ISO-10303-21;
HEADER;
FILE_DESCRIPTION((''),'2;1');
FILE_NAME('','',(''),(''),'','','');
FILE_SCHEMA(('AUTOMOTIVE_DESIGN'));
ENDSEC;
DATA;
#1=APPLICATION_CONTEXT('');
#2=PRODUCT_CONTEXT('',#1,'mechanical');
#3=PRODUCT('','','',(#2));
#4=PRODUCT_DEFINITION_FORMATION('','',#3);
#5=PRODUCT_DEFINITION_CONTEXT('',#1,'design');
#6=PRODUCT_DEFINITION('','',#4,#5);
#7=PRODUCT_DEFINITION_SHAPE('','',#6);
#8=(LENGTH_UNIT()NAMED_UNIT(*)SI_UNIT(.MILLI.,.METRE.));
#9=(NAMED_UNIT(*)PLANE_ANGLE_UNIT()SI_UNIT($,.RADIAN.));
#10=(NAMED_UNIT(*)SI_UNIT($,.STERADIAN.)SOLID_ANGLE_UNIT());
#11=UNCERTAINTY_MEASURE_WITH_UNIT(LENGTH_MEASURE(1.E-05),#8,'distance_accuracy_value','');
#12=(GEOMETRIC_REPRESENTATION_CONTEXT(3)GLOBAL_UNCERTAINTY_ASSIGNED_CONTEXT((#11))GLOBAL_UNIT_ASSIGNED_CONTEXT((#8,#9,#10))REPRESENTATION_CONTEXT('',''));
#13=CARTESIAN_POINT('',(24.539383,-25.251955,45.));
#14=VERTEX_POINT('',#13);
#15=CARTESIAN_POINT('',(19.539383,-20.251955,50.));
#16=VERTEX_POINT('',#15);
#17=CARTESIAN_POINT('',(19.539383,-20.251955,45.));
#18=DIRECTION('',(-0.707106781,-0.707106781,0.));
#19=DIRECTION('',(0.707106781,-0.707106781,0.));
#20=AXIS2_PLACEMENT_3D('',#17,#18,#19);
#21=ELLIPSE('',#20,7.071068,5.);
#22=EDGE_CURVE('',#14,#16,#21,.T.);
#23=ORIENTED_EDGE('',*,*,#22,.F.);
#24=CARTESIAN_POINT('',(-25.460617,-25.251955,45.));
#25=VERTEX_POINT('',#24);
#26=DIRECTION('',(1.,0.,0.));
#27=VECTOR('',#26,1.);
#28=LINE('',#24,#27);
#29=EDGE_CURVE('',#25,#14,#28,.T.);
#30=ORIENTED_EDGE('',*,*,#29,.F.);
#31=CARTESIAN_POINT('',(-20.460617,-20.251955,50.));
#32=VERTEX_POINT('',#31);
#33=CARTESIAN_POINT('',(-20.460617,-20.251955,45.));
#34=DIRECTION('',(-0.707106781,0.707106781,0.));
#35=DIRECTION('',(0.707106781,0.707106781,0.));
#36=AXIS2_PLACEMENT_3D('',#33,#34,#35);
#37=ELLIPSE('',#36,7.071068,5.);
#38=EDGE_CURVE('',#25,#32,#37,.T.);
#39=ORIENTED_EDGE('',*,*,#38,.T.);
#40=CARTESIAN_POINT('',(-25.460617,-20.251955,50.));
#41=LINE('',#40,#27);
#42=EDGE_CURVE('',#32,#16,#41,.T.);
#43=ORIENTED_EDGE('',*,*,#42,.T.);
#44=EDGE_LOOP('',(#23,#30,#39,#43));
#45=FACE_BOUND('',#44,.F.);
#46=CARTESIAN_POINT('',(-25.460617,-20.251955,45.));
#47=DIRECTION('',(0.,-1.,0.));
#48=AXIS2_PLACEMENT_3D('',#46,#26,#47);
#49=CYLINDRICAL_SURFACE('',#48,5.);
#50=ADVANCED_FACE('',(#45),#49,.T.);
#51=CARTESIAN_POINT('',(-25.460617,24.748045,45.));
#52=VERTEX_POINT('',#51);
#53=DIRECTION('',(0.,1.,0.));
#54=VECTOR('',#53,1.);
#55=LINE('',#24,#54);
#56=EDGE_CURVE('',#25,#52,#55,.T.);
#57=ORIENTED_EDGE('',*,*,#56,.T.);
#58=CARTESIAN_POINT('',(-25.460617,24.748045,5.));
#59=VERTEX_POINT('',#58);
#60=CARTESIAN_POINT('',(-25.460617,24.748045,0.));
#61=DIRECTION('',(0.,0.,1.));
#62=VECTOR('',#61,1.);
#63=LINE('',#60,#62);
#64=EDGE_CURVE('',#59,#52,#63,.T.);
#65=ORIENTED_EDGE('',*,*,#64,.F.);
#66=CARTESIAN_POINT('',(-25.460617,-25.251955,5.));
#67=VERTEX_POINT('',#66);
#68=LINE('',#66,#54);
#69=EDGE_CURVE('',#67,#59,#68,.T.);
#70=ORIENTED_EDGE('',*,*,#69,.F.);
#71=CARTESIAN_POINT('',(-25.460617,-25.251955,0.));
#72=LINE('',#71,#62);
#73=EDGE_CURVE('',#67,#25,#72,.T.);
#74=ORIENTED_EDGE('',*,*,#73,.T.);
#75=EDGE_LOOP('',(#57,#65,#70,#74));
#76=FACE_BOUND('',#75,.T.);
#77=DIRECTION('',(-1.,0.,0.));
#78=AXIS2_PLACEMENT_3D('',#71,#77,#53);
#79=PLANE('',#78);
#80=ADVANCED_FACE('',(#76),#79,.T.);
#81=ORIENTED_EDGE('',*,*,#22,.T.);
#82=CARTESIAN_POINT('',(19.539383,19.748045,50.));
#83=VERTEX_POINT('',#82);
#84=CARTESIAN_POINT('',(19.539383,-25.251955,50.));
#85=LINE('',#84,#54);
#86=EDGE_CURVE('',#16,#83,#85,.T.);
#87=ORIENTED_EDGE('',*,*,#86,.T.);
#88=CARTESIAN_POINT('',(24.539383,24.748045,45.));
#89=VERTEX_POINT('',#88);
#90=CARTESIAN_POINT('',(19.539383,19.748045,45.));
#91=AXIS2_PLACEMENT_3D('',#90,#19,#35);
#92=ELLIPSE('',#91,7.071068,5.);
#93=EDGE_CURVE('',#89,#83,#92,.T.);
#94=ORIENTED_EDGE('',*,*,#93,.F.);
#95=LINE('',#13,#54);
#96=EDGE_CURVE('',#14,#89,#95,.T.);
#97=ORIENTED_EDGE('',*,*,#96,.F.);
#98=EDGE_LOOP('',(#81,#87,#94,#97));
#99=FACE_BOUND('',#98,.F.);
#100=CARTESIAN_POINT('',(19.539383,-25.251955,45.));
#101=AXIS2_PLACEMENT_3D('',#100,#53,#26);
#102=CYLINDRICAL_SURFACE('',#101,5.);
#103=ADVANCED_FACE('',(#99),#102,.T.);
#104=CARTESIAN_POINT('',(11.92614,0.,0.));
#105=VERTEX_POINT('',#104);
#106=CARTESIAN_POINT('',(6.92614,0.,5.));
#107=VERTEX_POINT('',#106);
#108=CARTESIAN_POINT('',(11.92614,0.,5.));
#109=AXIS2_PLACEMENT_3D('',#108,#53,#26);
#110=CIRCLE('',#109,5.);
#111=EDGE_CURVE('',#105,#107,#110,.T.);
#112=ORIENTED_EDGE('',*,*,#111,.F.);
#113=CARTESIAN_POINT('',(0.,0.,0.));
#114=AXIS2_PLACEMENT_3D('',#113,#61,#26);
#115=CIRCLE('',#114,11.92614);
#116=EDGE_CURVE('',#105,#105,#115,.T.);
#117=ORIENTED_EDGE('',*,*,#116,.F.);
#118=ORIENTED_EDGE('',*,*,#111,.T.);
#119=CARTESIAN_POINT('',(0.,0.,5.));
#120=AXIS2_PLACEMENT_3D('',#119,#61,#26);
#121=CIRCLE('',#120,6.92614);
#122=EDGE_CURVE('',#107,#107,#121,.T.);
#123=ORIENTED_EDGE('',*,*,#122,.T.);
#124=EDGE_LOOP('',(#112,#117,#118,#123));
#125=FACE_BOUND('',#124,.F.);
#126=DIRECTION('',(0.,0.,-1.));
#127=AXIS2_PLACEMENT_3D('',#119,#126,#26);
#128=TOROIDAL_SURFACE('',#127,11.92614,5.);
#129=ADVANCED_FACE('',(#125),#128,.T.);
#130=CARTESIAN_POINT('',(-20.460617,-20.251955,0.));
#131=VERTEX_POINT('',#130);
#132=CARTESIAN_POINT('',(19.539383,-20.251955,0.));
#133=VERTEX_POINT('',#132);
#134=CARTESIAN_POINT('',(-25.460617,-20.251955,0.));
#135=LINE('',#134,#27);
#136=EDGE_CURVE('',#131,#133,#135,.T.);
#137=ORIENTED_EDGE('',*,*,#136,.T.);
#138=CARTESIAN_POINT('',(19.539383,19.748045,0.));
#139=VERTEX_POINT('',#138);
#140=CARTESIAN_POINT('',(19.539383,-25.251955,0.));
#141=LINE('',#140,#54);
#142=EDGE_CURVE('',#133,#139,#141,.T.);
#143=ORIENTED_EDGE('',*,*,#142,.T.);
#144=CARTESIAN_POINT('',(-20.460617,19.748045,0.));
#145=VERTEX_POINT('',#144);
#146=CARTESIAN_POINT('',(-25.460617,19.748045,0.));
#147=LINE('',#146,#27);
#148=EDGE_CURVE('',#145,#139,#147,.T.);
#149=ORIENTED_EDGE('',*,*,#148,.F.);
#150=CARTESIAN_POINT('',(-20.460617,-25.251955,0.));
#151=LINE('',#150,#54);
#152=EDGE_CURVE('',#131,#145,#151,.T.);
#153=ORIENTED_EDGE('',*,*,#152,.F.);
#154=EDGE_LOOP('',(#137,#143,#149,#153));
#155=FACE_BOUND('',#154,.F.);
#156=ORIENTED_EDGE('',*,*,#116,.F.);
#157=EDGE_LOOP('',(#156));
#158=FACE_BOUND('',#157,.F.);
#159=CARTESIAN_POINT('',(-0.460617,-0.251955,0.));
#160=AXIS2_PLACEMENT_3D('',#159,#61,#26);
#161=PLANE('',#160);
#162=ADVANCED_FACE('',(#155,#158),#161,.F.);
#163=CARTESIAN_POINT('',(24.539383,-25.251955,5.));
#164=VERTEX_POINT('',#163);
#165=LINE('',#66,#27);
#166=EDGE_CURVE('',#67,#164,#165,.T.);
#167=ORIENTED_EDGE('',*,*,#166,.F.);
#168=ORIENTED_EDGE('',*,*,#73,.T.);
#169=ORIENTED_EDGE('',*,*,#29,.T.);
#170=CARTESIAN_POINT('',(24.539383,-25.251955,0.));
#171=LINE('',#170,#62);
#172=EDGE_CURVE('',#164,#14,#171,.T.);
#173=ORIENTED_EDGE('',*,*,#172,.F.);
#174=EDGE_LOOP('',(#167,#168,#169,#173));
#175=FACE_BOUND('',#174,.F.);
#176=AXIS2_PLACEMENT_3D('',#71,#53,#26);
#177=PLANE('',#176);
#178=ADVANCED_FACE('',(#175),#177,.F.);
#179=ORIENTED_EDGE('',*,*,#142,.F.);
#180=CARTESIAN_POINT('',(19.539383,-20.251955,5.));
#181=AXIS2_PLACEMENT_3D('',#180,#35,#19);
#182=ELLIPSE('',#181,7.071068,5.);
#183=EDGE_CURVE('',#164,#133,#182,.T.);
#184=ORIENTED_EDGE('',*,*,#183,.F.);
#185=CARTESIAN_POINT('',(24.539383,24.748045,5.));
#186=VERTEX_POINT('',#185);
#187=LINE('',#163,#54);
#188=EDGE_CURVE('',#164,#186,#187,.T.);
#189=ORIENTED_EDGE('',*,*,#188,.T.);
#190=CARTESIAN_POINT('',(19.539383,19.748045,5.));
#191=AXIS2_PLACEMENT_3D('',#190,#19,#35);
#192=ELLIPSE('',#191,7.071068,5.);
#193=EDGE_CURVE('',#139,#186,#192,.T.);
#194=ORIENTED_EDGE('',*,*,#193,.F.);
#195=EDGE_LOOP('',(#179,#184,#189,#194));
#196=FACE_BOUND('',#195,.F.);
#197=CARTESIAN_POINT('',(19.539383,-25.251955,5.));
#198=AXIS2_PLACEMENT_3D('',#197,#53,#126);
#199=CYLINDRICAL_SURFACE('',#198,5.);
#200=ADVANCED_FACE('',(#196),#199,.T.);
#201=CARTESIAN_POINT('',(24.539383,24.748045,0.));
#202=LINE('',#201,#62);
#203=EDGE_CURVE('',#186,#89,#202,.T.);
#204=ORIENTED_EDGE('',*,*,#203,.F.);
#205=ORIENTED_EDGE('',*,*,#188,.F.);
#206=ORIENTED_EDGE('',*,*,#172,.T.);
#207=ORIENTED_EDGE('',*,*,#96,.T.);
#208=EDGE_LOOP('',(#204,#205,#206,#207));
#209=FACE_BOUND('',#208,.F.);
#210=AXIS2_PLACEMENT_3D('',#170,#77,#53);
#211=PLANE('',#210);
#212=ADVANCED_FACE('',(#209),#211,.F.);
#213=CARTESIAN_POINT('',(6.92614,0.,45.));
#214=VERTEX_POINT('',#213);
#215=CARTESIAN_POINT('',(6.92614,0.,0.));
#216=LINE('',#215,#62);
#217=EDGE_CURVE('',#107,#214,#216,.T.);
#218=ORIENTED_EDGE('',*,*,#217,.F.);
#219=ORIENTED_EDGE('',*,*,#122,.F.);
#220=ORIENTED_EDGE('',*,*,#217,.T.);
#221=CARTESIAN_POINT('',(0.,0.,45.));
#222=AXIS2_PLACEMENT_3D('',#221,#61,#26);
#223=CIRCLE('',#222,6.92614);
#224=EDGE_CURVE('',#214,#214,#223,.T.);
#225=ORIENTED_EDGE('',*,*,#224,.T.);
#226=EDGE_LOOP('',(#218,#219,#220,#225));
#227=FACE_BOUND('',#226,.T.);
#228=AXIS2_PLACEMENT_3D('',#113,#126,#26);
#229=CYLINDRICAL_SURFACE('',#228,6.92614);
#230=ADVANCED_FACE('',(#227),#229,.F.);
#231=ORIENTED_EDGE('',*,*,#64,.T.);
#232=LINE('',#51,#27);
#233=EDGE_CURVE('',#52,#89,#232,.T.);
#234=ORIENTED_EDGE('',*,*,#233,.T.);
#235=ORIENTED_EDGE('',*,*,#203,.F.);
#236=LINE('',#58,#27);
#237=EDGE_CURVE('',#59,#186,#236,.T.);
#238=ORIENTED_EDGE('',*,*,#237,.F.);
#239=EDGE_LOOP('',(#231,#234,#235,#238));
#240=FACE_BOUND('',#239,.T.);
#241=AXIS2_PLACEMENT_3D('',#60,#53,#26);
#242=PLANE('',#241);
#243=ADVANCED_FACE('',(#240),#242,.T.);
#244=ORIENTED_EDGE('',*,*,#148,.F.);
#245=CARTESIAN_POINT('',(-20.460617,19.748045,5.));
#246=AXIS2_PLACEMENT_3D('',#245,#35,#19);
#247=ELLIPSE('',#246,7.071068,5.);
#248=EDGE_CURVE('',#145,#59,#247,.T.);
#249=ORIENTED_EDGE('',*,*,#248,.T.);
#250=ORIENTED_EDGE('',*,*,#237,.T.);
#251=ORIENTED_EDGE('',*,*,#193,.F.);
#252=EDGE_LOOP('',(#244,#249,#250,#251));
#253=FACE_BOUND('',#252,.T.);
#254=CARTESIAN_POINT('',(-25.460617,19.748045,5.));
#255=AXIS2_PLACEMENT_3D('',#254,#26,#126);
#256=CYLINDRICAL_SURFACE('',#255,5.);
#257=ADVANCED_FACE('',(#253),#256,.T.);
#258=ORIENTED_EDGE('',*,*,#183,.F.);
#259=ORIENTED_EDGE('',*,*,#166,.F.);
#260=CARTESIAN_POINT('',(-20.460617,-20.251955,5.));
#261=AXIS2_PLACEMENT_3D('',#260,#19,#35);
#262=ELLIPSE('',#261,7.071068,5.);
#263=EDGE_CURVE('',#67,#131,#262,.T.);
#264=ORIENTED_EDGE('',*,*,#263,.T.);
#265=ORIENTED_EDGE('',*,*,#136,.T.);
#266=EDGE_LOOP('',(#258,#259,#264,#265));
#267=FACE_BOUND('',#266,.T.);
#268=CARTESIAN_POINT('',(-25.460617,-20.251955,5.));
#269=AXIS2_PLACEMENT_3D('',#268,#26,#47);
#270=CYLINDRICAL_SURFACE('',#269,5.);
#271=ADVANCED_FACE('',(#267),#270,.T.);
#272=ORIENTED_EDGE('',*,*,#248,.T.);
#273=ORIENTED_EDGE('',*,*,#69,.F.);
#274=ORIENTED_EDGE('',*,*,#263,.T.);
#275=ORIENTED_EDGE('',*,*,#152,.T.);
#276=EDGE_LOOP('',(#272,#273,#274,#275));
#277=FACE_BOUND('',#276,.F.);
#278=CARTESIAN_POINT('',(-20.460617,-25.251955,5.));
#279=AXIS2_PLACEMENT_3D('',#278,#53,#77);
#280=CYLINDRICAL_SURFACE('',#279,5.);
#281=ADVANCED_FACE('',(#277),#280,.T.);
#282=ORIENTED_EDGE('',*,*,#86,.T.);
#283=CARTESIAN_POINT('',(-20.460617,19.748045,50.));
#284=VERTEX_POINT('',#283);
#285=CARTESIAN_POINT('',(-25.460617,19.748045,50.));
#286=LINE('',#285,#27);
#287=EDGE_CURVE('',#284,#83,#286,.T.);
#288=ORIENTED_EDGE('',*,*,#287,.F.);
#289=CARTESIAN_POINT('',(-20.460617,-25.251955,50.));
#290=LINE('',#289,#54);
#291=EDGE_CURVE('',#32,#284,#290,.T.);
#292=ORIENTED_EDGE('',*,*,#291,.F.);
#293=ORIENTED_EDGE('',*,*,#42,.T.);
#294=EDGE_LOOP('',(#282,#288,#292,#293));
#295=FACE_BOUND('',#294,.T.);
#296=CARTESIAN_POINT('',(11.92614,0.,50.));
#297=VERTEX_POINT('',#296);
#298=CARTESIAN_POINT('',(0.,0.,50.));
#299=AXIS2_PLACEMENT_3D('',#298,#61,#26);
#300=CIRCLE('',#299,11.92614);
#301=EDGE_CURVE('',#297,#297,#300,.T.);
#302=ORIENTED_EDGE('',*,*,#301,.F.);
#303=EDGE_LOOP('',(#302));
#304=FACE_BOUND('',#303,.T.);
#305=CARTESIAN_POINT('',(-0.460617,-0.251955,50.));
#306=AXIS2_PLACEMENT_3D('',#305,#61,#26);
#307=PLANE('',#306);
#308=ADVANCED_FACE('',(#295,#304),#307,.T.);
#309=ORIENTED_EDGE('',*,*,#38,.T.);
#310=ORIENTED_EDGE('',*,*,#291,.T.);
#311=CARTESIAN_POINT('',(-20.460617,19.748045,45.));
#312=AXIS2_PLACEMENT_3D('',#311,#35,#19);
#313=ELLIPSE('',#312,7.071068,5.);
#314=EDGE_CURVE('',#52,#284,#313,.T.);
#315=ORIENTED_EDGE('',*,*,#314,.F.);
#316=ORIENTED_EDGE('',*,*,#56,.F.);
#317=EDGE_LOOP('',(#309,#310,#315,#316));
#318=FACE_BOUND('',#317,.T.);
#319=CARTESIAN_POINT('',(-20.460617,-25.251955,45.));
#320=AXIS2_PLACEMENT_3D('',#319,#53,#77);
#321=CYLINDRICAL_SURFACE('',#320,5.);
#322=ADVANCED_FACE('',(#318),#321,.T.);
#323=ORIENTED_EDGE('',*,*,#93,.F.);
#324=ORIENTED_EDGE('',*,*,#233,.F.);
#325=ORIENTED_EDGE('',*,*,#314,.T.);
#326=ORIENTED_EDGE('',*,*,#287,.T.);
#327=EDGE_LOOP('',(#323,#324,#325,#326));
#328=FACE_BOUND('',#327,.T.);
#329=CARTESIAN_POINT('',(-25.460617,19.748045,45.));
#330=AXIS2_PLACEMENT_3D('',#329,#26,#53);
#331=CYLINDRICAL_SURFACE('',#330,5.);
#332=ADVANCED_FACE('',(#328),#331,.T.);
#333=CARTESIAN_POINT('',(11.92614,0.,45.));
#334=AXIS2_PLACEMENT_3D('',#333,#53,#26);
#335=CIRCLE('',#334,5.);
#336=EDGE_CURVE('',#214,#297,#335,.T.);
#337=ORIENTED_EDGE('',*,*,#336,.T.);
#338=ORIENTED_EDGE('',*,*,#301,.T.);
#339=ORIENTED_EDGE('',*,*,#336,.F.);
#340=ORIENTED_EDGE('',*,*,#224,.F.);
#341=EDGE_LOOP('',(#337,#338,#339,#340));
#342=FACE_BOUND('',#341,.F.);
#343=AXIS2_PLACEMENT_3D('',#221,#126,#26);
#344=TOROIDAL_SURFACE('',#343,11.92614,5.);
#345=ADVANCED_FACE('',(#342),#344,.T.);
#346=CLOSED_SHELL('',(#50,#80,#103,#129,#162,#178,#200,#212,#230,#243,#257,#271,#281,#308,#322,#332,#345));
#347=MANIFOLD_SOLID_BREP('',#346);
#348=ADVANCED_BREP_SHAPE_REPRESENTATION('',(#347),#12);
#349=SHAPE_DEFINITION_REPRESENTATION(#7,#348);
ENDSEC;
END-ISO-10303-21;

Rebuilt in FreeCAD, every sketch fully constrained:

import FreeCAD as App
import Part
import Sketcher

V = App.Vector


def edges_at(feature, points):
    """Names of the edges that pass closest to the given points."""
    edges = feature.Shape.Edges
    near = lambda p: min(range(len(edges)), key=lambda i: edges[i].distToShape(Part.Vertex(*p))[0])
    return sorted({f"Edge{near(p) + 1}" for p in points})

doc = App.newDocument("Part")
body = doc.addObject("PartDesign::Body", "Body")

# Sketch on XY plane
sketch1 = doc.addObject("Sketcher::SketchObject", "Sketch")
body.addObject(sketch1)
sketch1.AttachmentSupport = (doc.XY_Plane, [""])
sketch1.MapMode = "FlatFace"
sketch1.addGeometry([
    Part.LineSegment(V(-25.460617, 24.748045, 0), V(-25.460617, -25.251955, 0)),  # 0
    Part.LineSegment(V(-25.460617, -25.251955, 0), V(24.539383, -25.251955, 0)),  # 1
    Part.LineSegment(V(24.539383, -25.251955, 0), V(24.539383, 24.748045, 0)),  # 2
    Part.LineSegment(V(24.539383, 24.748045, 0), V(-25.460617, 24.748045, 0)),  # 3
    Part.Circle(V(0, 0, 0), V(0, 0, 1), 6.92614),  # 4
], False)
sketch1.addConstraint([
    Sketcher.Constraint("Coincident", 0, 2, 1, 1),
    Sketcher.Constraint("Coincident", 1, 2, 2, 1),
    Sketcher.Constraint("Coincident", 2, 2, 3, 1),
    Sketcher.Constraint("Coincident", 3, 2, 0, 1),
    Sketcher.Constraint("Vertical", 0),
    Sketcher.Constraint("Horizontal", 1),
    Sketcher.Constraint("Vertical", 2),
    Sketcher.Constraint("Horizontal", 3),
    Sketcher.Constraint("Coincident", 4, 3, -1, 1),
    Sketcher.Constraint("Equal", 3, 0),
    Sketcher.Constraint("DistanceX", 1, 1, 1, 2, 50.0),
    Sketcher.Constraint("Diameter", 4, 13.85228),
    Sketcher.Constraint("DistanceX", 0, 2, -1, 1, 25.460617),
    Sketcher.Constraint("DistanceY", 0, 2, -1, 1, 25.251955),
])
pad1 = doc.addObject("PartDesign::Pad", "Pad")
body.addObject(pad1)
pad1.Profile = sketch1
pad1.Length = 50

# Sketch on XY plane
sketch2 = doc.addObject("Sketcher::SketchObject", "Sketch001")
body.addObject(sketch2)
sketch2.AttachmentSupport = (doc.XY_Plane, [""])
sketch2.MapMode = "FlatFace"
sketch2.addGeometry([
    Part.LineSegment(V(-25.460617, 24.748045, 0), V(-25.460617, -25.251955, 0)),  # 0
    Part.LineSegment(V(-25.460617, -25.251955, 0), V(24.539383, -25.251955, 0)),  # 1
    Part.LineSegment(V(24.539383, -25.251955, 0), V(24.539383, 24.748045, 0)),  # 2
    Part.LineSegment(V(24.539383, 24.748045, 0), V(-25.460617, 24.748045, 0)),  # 3
    Part.Circle(V(0, 0, 0), V(0, 0, 1), 6.92614),  # 4
], False)
sketch2.addConstraint([
    Sketcher.Constraint("Coincident", 0, 2, 1, 1),
    Sketcher.Constraint("Coincident", 1, 2, 2, 1),
    Sketcher.Constraint("Coincident", 2, 2, 3, 1),
    Sketcher.Constraint("Coincident", 3, 2, 0, 1),
    Sketcher.Constraint("Vertical", 0),
    Sketcher.Constraint("Horizontal", 1),
    Sketcher.Constraint("Vertical", 2),
    Sketcher.Constraint("Horizontal", 3),
    Sketcher.Constraint("Coincident", 4, 3, -1, 1),
    Sketcher.Constraint("Equal", 3, 0),
    Sketcher.Constraint("DistanceX", 1, 1, 1, 2, 50.0),
    Sketcher.Constraint("Diameter", 4, 13.85228),
    Sketcher.Constraint("DistanceX", 0, 2, -1, 1, 25.460617),
    Sketcher.Constraint("DistanceY", 0, 2, -1, 1, 25.251955),
])
pocket1 = doc.addObject("PartDesign::Pocket", "Pocket")
body.addObject(pocket1)
pocket1.Profile = sketch2
pocket1.Length = 20
doc.recompute()

fillet = doc.addObject("PartDesign::Fillet", "Fillet")
body.addObject(fillet)
fillet.Base = (pocket1, edges_at(pocket1, [
    (-0.461, 24.748, 50),
    (-25.461, -0.252, 50),
    (-0.461, -25.252, 50),
    (24.539, -0.252, 50),
    (-6.926, 0, 50),
]))
fillet.Radius = 5
doc.recompute()

fillet2 = doc.addObject("PartDesign::Fillet", "Fillet001")
body.addObject(fillet2)
fillet2.Base = (fillet, edges_at(fillet, [
    (-0.461, 24.748, 0),
    (-25.461, -0.252, 0),
    (-0.461, -25.252, 0),
    (24.539, -0.252, 0),
    (-6.926, 0, 0),
]))
fillet2.Radius = 5

doc.recompute()
